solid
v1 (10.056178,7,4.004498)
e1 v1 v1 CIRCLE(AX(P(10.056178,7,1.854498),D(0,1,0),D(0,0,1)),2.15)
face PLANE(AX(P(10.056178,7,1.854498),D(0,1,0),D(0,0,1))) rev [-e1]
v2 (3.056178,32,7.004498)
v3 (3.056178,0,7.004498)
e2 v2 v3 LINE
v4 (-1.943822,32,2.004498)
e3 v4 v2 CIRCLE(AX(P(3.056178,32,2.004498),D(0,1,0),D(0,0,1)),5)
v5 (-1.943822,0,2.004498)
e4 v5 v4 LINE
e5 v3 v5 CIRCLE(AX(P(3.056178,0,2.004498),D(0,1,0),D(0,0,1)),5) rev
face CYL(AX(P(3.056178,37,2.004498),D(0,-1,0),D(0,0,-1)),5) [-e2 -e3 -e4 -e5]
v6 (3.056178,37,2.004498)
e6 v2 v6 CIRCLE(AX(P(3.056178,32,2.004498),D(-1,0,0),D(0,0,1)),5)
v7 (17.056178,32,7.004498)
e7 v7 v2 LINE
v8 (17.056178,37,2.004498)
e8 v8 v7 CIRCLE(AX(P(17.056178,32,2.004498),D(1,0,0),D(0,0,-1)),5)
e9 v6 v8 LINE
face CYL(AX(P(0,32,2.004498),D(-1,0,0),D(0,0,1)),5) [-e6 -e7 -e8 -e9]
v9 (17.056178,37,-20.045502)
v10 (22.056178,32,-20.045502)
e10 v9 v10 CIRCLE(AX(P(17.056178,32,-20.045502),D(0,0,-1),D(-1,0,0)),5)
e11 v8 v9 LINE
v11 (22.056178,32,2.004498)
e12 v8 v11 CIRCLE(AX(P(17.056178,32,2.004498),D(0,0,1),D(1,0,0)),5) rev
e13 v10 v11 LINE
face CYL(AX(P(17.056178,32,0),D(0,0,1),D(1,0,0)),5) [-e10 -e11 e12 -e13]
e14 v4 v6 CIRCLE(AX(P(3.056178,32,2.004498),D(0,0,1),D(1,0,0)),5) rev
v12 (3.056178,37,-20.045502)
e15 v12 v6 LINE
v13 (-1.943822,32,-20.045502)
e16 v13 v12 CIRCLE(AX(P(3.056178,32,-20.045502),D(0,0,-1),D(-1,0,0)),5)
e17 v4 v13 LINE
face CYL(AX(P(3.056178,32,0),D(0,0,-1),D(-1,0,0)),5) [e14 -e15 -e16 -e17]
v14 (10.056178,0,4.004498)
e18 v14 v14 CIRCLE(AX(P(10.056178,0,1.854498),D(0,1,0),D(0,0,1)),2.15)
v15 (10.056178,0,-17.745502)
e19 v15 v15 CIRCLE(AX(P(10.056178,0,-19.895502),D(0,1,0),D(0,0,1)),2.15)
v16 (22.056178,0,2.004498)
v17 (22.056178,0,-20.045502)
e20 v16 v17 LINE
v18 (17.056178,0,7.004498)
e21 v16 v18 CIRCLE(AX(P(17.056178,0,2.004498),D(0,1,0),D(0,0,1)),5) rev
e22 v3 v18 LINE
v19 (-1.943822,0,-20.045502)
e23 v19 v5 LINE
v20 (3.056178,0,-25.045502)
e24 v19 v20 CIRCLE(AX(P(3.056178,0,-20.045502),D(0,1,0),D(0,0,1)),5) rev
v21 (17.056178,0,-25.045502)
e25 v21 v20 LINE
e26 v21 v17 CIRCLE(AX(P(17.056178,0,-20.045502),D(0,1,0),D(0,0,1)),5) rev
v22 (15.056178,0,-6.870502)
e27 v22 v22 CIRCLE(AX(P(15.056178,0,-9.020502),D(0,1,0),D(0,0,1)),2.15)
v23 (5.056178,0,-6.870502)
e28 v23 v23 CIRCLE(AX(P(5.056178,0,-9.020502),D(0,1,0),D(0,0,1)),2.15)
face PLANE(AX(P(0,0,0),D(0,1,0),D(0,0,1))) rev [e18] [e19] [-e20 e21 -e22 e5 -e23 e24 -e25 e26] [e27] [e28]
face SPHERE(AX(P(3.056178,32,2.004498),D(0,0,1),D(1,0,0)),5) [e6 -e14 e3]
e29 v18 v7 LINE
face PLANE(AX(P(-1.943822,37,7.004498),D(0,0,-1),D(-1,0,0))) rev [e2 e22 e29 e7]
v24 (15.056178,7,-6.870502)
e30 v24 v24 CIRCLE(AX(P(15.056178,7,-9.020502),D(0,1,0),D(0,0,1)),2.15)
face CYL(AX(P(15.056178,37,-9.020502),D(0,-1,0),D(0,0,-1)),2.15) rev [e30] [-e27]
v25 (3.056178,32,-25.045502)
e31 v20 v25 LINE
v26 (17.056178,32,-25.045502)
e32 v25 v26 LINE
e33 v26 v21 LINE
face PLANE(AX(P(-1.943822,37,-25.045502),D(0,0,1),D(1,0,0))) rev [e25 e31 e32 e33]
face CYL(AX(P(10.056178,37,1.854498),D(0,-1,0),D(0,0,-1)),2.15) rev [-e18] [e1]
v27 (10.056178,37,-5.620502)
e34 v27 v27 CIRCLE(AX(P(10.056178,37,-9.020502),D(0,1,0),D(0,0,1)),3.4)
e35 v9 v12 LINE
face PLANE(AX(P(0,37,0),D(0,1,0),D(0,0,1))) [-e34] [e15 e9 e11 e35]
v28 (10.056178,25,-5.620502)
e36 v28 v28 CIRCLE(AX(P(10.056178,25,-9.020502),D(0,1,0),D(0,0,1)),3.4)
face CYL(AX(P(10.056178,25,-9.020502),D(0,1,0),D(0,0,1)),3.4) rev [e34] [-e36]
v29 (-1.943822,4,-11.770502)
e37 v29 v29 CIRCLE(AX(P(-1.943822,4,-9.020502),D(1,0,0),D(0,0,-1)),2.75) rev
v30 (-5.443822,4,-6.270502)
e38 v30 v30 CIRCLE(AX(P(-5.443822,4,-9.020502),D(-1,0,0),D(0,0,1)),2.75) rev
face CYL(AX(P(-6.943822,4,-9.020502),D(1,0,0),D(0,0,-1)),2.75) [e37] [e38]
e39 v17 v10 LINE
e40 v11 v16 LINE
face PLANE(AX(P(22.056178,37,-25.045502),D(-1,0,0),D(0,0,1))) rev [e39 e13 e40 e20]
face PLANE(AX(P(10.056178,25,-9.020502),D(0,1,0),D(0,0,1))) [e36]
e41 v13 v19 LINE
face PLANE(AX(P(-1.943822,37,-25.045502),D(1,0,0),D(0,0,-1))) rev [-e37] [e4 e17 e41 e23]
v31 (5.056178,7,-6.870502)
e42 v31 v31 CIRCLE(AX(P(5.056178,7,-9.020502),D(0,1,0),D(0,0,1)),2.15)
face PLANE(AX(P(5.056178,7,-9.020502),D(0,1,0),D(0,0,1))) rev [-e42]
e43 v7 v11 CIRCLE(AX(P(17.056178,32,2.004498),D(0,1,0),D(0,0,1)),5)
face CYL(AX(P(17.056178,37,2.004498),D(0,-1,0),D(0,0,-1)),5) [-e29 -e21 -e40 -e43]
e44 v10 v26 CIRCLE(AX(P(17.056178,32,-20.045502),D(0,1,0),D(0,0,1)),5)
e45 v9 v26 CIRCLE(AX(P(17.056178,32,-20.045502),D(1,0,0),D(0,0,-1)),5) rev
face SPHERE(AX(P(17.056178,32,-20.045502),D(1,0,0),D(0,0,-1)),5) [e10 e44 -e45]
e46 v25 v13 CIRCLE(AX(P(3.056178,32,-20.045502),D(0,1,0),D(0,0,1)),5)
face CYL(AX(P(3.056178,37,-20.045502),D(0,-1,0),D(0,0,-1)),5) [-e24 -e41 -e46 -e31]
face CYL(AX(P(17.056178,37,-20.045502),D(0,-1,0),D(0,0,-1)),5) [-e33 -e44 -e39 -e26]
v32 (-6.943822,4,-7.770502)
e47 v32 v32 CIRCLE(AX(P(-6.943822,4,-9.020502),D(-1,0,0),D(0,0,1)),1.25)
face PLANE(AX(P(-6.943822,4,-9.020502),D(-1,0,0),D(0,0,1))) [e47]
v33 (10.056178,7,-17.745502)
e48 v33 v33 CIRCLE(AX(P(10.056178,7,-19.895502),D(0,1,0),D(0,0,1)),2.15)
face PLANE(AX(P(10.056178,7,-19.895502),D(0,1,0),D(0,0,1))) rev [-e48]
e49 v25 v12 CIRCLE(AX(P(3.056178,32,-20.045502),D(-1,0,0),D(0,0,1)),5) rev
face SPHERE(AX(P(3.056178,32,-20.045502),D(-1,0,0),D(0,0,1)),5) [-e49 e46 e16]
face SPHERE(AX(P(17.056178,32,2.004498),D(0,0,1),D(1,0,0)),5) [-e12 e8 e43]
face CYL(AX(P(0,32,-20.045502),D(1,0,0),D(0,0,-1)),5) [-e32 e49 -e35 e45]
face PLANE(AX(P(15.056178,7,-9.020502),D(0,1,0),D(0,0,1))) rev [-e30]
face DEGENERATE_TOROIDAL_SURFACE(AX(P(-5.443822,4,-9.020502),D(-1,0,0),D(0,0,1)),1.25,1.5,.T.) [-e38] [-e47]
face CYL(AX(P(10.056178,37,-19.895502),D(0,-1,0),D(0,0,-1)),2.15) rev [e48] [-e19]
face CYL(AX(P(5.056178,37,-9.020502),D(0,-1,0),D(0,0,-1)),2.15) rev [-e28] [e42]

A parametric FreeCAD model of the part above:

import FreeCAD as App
import Part
import Sketcher
from FreeCAD import Vector


def edges_at(feature, points):
    """Names of the edges that pass closest to the given points."""
    edges = feature.Shape.Edges
    near = lambda p: min(range(len(edges)), key=lambda i: edges[i].distToShape(Part.Vertex(*p))[0])
    return sorted({f"Edge{near(p) + 1}" for p in points})


def add_polygon(sketch, points):
    """Adds a closed chain of lines whose ends are joined by coincident constraints."""
    first, n = sketch.GeometryCount, len(points)
    for a, b in zip(points, points[1:] + points[:1]):
        sketch.addGeometry(Part.LineSegment(App.Vector(*a, 0), App.Vector(*b, 0)), False)
    for i in range(n):
        sketch.addConstraint(Sketcher.Constraint("Coincident", first + i, 2, first + (i + 1) % n, 1))

doc = App.newDocument("Part")
body = doc.addObject("PartDesign::Body", "Body")

sketch1 = doc.addObject("Sketcher::SketchObject", "Sketch")
body.addObject(sketch1)
sketch1.AttachmentSupport = (doc.XZ_Plane, [""])
sketch1.MapMode = "FlatFace"
add_polygon(sketch1, [(-1.943822, -25.045502), (-1.943822, 7.004498), (22.056178, 7.004498), (22.056178, -25.045502)])
sketch1.addGeometry(Part.Circle(Vector(10.056178, 1.854498, 0), Vector(0, 0, 1), 2.15), False)
sketch1.addGeometry(Part.Circle(Vector(5.056178, -9.020502, 0), Vector(0, 0, 1), 2.15), False)
sketch1.addGeometry(Part.Circle(Vector(10.056178, -19.895502, 0), Vector(0, 0, 1), 2.15), False)
sketch1.addGeometry(Part.Circle(Vector(15.056178, -9.020502, 0), Vector(0, 0, 1), 2.15), False)
sketch1.addConstraint([
    Sketcher.Constraint("Vertical", 0),
    Sketcher.Constraint("Horizontal", 1),
    Sketcher.Constraint("Vertical", 2),
    Sketcher.Constraint("Horizontal", 3),
    Sketcher.Constraint("Equal", 4, 5),
    Sketcher.Constraint("Equal", 5, 6),
    Sketcher.Constraint("Equal", 6, 7),
    Sketcher.Constraint("Horizontal", 5, 3, 7, 3),
    Sketcher.Constraint("Vertical", 4, 3, 6, 3),
    Sketcher.Constraint("Diameter", 4, 4.3),
    Sketcher.Constraint("DistanceX", 1, 1, 1, 2, 24.0),
    Sketcher.Constraint("DistanceX", 5, 3, 4, 3, 5.0),
    Sketcher.Constraint("DistanceX", 5, 3, 7, 3, 10.0),
    Sketcher.Constraint("DistanceX", 0, 2, 4, 3, 12.0),
    Sketcher.Constraint("DistanceY", 0, 1, 0, 2, 32.05),
    Sketcher.Constraint("DistanceY", 6, 3, 0, 2, 26.9),
    Sketcher.Constraint("DistanceY", 2, 2, 4, 3, 26.9),
    Sketcher.Constraint("DistanceY", 5, 3, 4, 3, 10.875),
    Sketcher.Constraint("DistanceX", -1, 1, 4, 3, 10.056178),
    Sketcher.Constraint("DistanceY", -1, 1, 4, 3, 1.854498),
])
pad1 = doc.addObject("PartDesign::Pad", "Pad")
body.addObject(pad1)
pad1.Profile = sketch1
pad1.Length = 37
pad1.Reversed = True

sketch2 = doc.addObject("Sketcher::SketchObject", "Sketch001")
body.addObject(sketch2)
sketch2.AttachmentSupport = (doc.XZ_Plane, [""])
sketch2.MapMode = "FlatFace"
sketch2.AttachmentOffset = App.Placement(Vector(0, 0, -37), App.Rotation())
sketch2.addGeometry([
    Part.Circle(Vector(10.056178, -19.895502, 0), Vector(0, 0, 1), 2.15),
    Part.Circle(Vector(15.056178, -9.020502, 0), Vector(0, 0, 1), 2.15),
    Part.Circle(Vector(10.056178, 1.854498, 0), Vector(0, 0, 1), 2.15),
    Part.Circle(Vector(5.056178, -9.020502, 0), Vector(0, 0, 1), 2.15),
], False)
sketch2.addConstraint([
    Sketcher.Constraint("Equal", 0, 1),
    Sketcher.Constraint("Equal", 1, 2),
    Sketcher.Constraint("Equal", 2, 3),
    Sketcher.Constraint("Horizontal", 1, 3, 3, 3),
    Sketcher.Constraint("Vertical", 0, 3, 2, 3),
    Sketcher.Constraint("Diameter", 0, 4.3),
    Sketcher.Constraint("DistanceX", 0, 3, 1, 3, 5.0),
    Sketcher.Constraint("DistanceX", 3, 3, 1, 3, 10.0),
    Sketcher.Constraint("DistanceY", 0, 3, 2, 3, 21.75),
    Sketcher.Constraint("DistanceY", 0, 3, 1, 3, 10.875),
    Sketcher.Constraint("DistanceX", -1, 1, 0, 3, 10.056178),
    Sketcher.Constraint("DistanceY", 0, 3, -1, 1, 19.895502),
])
pad2 = doc.addObject("PartDesign::Pad", "Pad001")
body.addObject(pad2)
pad2.Profile = sketch2
pad2.Length = 30

sketch3 = doc.addObject("Sketcher::SketchObject", "Sketch002")
body.addObject(sketch3)
sketch3.AttachmentSupport = (doc.XZ_Plane, [""])
sketch3.MapMode = "FlatFace"
sketch3.AttachmentOffset = App.Placement(Vector(0, 0, -37), App.Rotation())
sketch3.addGeometry(Part.Circle(Vector(10.056178, -9.020502, 0), Vector(0, 0, 1), 3.4), False)
sketch3.addConstraint([
    Sketcher.Constraint("Diameter", 0, 6.8),
    Sketcher.Constraint("DistanceX", -1, 1, 0, 3, 10.056178),
    Sketcher.Constraint("DistanceY", 0, 3, -1, 1, 9.020502),
])
pocket1 = doc.addObject("PartDesign::Pocket", "Pocket")
body.addObject(pocket1)
pocket1.Profile = sketch3
pocket1.Length = 12
pocket1.Reversed = True
doc.recompute()

fillet = doc.addObject("PartDesign::Fillet", "Fillet")
body.addObject(fillet)
fillet.Base = (pocket1, edges_at(pocket1, [
    (22.056, 37, -9.021),
    (10.056, 37, -25.046),
    (-1.944, 37, -9.021),
    (-1.944, 18.5, -25.046),
    (22.056, 18.5, -25.046),
    (22.056, 18.5, 7.004),
    (-1.944, 18.5, 7.004),
    (10.056, 37, 7.004),
]))
fillet.Radius = 5

sketch4 = doc.addObject("Sketcher::SketchObject", "Sketch003")
body.addObject(sketch4)
sketch4.AttachmentSupport = (doc.YZ_Plane, [""])
sketch4.MapMode = "FlatFace"
sketch4.AttachmentOffset = App.Placement(Vector(0, 0, -1.943822), App.Rotation())
sketch4.addGeometry(Part.Circle(Vector(4, -9.020502, 0), Vector(0, 0, 1), 2.75), False)
sketch4.addConstraint([
    Sketcher.Constraint("Diameter", 0, 5.5),
    Sketcher.Constraint("DistanceX", -1, 1, 0, 3, 4.0),
    Sketcher.Constraint("DistanceY", 0, 3, -1, 1, 9.020502),
])
pad3 = doc.addObject("PartDesign::Pad", "Pad002")
body.addObject(pad3)
pad3.Profile = sketch4
pad3.Length = 5
pad3.Reversed = True
doc.recompute()

fillet2 = doc.addObject("PartDesign::Fillet", "Fillet001")
body.addObject(fillet2)
fillet2.Base = (pad3, edges_at(pad3, [(-6.944, 4, -11.771)]))
fillet2.Radius = 1.5

doc.recompute()
